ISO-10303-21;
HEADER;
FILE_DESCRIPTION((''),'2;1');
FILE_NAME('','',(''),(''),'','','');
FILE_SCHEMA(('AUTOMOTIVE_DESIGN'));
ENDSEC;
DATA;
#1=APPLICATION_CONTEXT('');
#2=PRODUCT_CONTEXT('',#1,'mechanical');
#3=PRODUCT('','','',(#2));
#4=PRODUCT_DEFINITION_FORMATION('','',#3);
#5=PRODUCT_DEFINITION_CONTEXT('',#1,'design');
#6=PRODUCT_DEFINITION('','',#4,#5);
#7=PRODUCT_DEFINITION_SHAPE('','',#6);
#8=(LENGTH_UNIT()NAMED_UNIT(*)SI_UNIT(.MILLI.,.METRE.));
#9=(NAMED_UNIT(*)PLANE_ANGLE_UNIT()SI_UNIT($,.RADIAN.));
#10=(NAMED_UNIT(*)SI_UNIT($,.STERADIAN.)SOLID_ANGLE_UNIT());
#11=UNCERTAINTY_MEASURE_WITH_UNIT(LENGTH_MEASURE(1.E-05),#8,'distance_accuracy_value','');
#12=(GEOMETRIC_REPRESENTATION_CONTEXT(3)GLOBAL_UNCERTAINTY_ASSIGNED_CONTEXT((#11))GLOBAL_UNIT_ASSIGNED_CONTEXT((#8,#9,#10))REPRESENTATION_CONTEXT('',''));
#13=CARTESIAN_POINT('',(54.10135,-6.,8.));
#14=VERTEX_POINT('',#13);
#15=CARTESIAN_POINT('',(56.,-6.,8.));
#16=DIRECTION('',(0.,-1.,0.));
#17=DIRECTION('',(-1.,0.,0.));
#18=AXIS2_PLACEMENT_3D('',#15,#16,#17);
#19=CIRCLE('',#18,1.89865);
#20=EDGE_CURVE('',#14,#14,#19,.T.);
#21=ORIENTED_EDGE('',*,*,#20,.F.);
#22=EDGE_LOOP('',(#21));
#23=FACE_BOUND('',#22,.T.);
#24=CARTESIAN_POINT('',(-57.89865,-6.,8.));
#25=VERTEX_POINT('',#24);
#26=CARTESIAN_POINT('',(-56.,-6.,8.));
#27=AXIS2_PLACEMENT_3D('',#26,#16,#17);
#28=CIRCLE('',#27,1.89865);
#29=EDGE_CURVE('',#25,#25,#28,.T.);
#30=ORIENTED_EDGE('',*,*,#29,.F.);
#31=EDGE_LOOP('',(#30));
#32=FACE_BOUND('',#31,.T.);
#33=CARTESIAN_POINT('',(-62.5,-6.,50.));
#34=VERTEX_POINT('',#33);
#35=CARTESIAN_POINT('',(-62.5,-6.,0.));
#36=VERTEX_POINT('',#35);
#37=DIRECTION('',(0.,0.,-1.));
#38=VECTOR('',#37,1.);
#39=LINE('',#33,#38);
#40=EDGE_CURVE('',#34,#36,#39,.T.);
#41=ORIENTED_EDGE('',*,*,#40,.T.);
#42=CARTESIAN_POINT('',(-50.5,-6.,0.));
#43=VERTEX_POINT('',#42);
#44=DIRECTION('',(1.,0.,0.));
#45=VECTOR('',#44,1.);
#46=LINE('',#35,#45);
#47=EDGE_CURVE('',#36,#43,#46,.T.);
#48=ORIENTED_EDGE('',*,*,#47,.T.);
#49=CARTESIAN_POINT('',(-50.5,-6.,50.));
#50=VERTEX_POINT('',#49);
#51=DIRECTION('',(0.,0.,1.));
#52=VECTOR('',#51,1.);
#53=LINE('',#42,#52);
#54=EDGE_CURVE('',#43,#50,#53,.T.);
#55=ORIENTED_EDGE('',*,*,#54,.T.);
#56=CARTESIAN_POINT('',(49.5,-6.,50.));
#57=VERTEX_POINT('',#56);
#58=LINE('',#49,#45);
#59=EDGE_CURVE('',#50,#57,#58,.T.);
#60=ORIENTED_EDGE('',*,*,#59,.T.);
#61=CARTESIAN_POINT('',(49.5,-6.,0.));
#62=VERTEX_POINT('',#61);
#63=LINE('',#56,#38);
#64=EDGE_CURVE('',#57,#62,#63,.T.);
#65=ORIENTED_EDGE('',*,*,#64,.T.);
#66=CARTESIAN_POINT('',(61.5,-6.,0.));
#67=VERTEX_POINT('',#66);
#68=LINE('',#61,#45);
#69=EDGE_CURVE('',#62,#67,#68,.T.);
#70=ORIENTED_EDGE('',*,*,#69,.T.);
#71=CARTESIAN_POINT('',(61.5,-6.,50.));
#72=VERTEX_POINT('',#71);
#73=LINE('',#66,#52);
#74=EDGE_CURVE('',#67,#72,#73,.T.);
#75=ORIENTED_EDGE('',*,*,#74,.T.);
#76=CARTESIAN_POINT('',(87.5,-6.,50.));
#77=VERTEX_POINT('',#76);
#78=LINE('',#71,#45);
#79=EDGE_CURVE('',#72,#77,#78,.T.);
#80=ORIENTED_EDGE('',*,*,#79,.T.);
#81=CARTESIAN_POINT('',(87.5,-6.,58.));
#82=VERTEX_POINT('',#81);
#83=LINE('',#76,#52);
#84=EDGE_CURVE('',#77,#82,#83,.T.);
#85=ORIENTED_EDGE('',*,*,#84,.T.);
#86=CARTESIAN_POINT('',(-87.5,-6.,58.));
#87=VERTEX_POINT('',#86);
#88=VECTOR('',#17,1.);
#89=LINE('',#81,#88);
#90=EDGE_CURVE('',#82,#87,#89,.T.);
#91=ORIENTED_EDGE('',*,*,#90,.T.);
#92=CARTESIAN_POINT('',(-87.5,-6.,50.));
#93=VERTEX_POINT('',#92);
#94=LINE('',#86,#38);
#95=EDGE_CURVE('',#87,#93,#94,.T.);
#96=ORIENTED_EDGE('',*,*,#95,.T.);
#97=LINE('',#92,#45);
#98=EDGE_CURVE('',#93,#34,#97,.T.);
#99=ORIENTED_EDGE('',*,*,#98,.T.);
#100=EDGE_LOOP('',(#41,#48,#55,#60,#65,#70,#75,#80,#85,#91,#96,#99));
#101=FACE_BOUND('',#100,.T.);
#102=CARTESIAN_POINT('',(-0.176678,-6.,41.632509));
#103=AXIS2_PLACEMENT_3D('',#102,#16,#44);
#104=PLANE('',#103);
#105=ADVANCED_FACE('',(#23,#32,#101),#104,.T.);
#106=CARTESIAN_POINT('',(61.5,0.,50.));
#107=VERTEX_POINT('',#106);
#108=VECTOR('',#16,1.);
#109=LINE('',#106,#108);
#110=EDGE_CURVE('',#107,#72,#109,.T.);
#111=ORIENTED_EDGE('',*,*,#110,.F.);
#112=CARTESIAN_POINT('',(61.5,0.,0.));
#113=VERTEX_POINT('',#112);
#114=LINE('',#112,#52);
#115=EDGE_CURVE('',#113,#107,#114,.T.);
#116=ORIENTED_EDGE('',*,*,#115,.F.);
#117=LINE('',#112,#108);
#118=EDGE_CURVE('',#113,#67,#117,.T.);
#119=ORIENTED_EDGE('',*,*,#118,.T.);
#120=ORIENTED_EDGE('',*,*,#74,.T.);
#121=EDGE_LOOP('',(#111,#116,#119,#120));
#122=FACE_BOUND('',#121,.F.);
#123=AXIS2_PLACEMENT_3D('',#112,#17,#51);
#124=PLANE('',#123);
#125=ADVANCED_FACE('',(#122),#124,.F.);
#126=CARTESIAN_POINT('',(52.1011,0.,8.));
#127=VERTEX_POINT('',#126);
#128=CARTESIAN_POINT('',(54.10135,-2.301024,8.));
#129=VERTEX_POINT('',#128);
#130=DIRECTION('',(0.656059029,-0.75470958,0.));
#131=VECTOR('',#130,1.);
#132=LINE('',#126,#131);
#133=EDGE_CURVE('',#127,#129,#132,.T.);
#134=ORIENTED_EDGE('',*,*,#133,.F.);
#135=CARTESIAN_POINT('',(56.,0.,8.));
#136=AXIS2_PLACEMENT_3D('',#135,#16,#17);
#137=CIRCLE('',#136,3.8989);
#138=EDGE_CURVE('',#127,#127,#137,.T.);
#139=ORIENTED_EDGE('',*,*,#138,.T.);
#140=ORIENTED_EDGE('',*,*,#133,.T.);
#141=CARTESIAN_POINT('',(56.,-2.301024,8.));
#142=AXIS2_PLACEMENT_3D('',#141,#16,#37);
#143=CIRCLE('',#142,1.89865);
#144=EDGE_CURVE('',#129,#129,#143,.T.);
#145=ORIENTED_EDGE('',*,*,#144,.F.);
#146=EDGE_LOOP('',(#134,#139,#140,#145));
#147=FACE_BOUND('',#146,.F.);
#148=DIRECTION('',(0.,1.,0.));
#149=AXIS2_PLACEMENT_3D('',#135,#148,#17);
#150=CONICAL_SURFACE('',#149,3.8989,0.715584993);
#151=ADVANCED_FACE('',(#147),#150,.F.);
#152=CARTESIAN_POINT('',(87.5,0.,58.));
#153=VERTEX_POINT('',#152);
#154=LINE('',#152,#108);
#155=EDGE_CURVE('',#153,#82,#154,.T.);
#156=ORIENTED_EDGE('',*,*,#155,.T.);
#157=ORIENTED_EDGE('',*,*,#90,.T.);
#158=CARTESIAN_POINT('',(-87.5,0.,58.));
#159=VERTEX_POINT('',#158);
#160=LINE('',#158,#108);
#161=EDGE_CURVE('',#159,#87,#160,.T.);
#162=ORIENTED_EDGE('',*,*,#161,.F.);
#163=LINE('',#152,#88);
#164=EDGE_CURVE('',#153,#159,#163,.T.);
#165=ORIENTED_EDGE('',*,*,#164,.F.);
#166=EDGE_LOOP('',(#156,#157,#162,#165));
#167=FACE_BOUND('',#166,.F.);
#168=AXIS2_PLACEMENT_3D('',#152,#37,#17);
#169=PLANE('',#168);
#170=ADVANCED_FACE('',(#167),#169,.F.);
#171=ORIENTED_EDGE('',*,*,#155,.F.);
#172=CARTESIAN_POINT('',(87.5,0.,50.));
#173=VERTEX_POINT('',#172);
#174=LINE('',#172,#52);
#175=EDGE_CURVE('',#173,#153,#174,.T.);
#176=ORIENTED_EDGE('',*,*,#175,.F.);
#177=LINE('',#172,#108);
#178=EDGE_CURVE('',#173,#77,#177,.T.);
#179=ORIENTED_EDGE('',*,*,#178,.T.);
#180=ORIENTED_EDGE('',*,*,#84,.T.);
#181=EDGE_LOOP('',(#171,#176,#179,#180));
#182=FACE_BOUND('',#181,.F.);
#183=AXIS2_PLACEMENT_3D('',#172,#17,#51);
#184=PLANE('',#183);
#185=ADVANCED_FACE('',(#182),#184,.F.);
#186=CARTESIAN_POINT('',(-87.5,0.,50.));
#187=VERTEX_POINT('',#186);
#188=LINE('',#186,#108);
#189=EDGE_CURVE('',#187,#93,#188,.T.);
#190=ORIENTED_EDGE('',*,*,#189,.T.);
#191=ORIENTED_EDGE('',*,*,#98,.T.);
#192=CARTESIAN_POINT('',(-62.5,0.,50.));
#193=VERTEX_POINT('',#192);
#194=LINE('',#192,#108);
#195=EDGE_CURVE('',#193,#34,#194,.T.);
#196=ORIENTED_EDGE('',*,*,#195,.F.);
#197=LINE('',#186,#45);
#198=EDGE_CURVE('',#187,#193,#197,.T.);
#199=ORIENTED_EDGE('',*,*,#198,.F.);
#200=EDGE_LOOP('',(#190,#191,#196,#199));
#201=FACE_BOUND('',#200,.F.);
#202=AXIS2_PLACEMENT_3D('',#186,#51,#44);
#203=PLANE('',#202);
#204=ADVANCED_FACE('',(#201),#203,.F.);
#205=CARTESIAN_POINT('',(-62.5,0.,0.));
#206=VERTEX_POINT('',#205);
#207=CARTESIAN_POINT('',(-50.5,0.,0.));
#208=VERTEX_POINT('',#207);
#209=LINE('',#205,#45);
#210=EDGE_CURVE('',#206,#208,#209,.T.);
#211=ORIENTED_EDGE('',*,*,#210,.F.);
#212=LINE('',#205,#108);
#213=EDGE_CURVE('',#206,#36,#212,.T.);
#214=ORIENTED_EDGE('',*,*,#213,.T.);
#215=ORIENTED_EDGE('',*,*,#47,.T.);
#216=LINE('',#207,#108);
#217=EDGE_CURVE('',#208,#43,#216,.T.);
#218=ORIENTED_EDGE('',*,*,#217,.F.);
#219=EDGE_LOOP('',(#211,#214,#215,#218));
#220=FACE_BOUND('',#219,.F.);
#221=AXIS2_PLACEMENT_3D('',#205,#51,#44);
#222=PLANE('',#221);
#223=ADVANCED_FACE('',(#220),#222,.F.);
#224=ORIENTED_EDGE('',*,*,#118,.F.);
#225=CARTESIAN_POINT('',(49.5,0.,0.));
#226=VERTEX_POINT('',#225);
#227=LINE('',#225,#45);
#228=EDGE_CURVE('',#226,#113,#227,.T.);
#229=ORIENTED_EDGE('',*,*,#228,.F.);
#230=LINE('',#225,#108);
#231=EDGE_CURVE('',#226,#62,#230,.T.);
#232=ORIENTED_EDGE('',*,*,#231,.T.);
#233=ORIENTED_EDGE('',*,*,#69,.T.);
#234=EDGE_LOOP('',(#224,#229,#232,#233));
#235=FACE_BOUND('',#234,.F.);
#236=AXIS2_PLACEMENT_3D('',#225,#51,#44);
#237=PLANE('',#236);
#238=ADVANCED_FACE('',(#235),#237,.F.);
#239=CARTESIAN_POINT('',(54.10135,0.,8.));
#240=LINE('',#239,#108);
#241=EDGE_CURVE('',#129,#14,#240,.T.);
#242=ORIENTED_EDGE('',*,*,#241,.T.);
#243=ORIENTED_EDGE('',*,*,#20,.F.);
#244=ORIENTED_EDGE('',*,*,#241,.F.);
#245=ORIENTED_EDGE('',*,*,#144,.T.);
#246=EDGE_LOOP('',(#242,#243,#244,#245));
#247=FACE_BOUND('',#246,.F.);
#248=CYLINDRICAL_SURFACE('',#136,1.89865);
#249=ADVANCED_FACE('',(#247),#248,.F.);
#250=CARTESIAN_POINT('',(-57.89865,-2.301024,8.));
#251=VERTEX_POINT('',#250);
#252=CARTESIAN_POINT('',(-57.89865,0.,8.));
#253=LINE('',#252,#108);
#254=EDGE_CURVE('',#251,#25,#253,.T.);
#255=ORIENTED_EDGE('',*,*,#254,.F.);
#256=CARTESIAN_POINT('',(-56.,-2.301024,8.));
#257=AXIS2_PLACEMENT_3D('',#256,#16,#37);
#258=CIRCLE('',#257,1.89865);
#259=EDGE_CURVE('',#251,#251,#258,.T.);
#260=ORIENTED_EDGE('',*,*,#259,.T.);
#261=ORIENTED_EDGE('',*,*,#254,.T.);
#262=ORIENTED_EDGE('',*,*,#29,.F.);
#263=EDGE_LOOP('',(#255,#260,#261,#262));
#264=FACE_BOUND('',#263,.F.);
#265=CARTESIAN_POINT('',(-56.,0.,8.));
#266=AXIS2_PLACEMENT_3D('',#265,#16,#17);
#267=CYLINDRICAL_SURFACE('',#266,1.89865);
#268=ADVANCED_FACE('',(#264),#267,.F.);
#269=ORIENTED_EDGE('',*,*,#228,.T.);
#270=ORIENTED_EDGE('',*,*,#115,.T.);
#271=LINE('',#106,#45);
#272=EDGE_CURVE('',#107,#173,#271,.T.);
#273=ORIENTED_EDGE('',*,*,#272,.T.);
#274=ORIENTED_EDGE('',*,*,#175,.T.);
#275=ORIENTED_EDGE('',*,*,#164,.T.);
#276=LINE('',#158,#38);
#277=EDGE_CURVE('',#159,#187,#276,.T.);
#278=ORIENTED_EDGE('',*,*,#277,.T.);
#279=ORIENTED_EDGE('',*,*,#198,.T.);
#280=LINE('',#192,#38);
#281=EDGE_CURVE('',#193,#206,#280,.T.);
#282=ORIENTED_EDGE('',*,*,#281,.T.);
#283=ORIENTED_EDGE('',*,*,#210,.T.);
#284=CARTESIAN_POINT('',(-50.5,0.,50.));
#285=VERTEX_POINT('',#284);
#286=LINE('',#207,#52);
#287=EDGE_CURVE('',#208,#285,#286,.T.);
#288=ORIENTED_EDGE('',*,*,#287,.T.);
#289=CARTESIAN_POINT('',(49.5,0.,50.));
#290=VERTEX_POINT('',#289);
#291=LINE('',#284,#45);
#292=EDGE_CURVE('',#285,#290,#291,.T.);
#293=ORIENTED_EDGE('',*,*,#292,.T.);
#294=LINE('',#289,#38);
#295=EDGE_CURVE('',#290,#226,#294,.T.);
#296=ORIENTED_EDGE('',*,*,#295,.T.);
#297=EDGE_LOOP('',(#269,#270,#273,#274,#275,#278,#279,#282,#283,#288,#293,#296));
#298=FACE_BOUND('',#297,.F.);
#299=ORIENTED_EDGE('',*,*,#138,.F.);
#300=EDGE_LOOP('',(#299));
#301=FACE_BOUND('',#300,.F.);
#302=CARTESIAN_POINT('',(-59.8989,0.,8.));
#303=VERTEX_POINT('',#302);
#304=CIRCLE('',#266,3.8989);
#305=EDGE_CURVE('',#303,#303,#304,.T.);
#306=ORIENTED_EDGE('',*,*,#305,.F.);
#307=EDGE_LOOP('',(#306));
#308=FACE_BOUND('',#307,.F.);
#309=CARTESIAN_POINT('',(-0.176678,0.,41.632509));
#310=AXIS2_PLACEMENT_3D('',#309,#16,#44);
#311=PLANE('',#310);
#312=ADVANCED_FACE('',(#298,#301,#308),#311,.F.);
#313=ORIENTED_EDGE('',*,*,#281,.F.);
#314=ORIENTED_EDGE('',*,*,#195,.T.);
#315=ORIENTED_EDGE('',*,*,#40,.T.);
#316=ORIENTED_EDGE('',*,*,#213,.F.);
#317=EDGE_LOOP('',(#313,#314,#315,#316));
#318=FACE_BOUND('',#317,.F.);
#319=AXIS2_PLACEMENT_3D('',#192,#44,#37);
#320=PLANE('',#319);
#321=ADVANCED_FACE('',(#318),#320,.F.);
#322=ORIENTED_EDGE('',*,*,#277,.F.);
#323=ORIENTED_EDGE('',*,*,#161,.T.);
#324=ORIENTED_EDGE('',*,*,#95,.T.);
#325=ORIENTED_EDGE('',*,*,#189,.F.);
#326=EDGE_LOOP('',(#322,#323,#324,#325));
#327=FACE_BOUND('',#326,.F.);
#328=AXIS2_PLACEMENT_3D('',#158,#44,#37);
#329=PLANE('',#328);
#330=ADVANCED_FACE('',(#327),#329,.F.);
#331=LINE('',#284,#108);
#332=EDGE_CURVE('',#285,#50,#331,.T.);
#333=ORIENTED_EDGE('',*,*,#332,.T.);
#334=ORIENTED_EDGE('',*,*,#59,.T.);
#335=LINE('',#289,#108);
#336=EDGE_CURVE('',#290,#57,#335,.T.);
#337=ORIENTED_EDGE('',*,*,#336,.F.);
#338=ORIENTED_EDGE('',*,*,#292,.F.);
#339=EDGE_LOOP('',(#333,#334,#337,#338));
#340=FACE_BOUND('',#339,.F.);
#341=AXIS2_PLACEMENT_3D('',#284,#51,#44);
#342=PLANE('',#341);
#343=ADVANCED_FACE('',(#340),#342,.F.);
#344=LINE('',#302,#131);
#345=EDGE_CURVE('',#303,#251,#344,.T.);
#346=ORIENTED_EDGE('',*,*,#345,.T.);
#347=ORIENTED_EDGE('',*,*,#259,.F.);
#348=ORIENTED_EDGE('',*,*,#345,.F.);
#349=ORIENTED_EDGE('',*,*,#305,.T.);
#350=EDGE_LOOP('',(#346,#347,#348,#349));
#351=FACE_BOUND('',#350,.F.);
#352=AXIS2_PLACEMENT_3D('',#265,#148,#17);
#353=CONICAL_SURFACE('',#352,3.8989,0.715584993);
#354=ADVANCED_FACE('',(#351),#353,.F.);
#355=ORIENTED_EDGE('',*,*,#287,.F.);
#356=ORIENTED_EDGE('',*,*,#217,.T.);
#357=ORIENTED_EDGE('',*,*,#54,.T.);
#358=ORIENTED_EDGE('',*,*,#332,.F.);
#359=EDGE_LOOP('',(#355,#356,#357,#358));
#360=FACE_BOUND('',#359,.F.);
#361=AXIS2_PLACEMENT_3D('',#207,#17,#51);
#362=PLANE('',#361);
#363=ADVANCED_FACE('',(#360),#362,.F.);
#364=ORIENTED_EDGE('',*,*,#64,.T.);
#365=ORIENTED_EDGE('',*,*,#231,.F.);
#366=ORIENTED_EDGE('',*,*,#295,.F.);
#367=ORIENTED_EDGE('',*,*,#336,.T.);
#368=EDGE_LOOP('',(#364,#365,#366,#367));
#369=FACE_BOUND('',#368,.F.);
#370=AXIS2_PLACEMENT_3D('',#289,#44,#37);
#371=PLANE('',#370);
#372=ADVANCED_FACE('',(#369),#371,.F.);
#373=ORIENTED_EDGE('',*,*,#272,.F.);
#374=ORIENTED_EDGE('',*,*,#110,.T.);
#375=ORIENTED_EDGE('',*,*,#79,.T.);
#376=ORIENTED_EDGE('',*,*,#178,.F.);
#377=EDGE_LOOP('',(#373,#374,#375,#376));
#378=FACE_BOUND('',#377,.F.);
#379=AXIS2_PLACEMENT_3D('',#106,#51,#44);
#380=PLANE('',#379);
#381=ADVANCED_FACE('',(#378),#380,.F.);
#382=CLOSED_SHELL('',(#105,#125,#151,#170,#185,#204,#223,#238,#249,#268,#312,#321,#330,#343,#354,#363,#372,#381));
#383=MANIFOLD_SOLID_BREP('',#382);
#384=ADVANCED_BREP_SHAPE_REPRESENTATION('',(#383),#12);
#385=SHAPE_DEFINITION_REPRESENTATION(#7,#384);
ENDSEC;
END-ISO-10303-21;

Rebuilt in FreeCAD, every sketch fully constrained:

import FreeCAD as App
import Part
import Sketcher
from FreeCAD import Vector


def add_polygon(sketch, points):
    """Adds a closed chain of lines whose ends are joined by coincident constraints."""
    first, n = sketch.GeometryCount, len(points)
    for a, b in zip(points, points[1:] + points[:1]):
        sketch.addGeometry(Part.LineSegment(App.Vector(*a, 0), App.Vector(*b, 0)), False)
    for i in range(n):
        sketch.addConstraint(Sketcher.Constraint("Coincident", first + i, 2, first + (i + 1) % n, 1))

doc = App.newDocument("Part")
body = doc.addObject("PartDesign::Body", "Body")

# Sketch on XZ plane
sketch1 = doc.addObject("Sketcher::SketchObject", "Sketch")
body.addObject(sketch1)
sketch1.AttachmentSupport = (doc.XZ_Plane, [""])
sketch1.MapMode = "FlatFace"
add_polygon(sketch1, [(-87.5, 58), (-87.5, 50), (-62.5, 50), (-62.5, 0), (-50.5, 0), (-50.5, 50), (49.5, 50), (49.5, 0), (61.5, 0), (61.5, 50), (87.5, 50), (87.5, 58)])  # lines 0-11
sketch1.addConstraint(Sketcher.Constraint("Vertical", 0))
sketch1.addConstraint(Sketcher.Constraint("Horizontal", 1))
sketch1.addConstraint(Sketcher.Constraint("Vertical", 2))
sketch1.addConstraint(Sketcher.Constraint("Horizontal", 3))
sketch1.addConstraint(Sketcher.Constraint("Vertical", 4))
sketch1.addConstraint(Sketcher.Constraint("Horizontal", 5))
sketch1.addConstraint(Sketcher.Constraint("Vertical", 6))
sketch1.addConstraint(Sketcher.Constraint("Horizontal", 7))
sketch1.addConstraint(Sketcher.Constraint("Vertical", 8))
sketch1.addConstraint(Sketcher.Constraint("Horizontal", 9))
sketch1.addConstraint(Sketcher.Constraint("Vertical", 10))
sketch1.addConstraint(Sketcher.Constraint("Horizontal", 11))
sketch1.addConstraint(Sketcher.Constraint("Symmetric", 0, 2, 9, 2, -2))
sketch1.addConstraint(Sketcher.Constraint("PointOnObject", 2, 2, -1))
sketch1.addConstraint(Sketcher.Constraint("PointOnObject", 6, 2, -1))
sketch1.addConstraint(Sketcher.Constraint("Horizontal", 1, 2, 4, 2))
sketch1.addConstraint(Sketcher.Constraint("Equal", 3, 7))
sketch1.addConstraint(Sketcher.Constraint("DistanceX", 1, 1, 1, 2, 25.0))
sketch1.addConstraint(Sketcher.Constraint("DistanceX", 3, 1, 3, 2, 12.0))
sketch1.addConstraint(Sketcher.Constraint("DistanceX", 5, 1, 5, 2, 100.0))
sketch1.addConstraint(Sketcher.Constraint("DistanceX", 9, 1, 9, 2, 26.0))
sketch1.addConstraint(Sketcher.Constraint("DistanceY", 0, 2, 0, 1, 8.0))
sketch1.addConstraint(Sketcher.Constraint("DistanceY", 2, 2, 2, 1, 50.0))
pad1 = doc.addObject("PartDesign::Pad", "Pad")
body.addObject(pad1)
pad1.Profile = sketch1
pad1.Length = 6

# Sketch on XZ plane
sketch2 = doc.addObject("Sketcher::SketchObject", "Sketch001")
body.addObject(sketch2)
sketch2.AttachmentSupport = (doc.XZ_Plane, [""])
sketch2.MapMode = "FlatFace"
sketch2.addGeometry(Part.Circle(Vector(-56, 8, 0), Vector(0, 0, 1), 1.89865), False)
sketch2.addGeometry(Part.Circle(Vector(56, 8, 0), Vector(0, 0, 1), 1.89865), False)
sketch2.addConstraint(Sketcher.Constraint("Equal", 0, 1))
sketch2.addConstraint(Sketcher.Constraint("Symmetric", 0, 3, 1, 3, -2))
sketch2.addConstraint(Sketcher.Constraint("DistanceX", 0, 3, -1, 1, 56.0))
sketch2.addConstraint(Sketcher.Constraint("DistanceY", -1, 1, 0, 3, 8.0))
sketch2.addConstraint(Sketcher.Constraint("Diameter", 0, 3.7973))
doc.recompute()
hole = doc.addObject("PartDesign::Hole", "Hole")
body.addObject(hole)
hole.Profile = sketch2
hole.ThreadType = "None"
hole.Diameter = 3.7973
hole.DepthType = "ThroughAll"
hole.HoleCutType = "Countersink"
hole.HoleCutDiameter = 7.7978
hole.HoleCutCountersinkAngle = 82
hole.Reversed = True

doc.recompute()
